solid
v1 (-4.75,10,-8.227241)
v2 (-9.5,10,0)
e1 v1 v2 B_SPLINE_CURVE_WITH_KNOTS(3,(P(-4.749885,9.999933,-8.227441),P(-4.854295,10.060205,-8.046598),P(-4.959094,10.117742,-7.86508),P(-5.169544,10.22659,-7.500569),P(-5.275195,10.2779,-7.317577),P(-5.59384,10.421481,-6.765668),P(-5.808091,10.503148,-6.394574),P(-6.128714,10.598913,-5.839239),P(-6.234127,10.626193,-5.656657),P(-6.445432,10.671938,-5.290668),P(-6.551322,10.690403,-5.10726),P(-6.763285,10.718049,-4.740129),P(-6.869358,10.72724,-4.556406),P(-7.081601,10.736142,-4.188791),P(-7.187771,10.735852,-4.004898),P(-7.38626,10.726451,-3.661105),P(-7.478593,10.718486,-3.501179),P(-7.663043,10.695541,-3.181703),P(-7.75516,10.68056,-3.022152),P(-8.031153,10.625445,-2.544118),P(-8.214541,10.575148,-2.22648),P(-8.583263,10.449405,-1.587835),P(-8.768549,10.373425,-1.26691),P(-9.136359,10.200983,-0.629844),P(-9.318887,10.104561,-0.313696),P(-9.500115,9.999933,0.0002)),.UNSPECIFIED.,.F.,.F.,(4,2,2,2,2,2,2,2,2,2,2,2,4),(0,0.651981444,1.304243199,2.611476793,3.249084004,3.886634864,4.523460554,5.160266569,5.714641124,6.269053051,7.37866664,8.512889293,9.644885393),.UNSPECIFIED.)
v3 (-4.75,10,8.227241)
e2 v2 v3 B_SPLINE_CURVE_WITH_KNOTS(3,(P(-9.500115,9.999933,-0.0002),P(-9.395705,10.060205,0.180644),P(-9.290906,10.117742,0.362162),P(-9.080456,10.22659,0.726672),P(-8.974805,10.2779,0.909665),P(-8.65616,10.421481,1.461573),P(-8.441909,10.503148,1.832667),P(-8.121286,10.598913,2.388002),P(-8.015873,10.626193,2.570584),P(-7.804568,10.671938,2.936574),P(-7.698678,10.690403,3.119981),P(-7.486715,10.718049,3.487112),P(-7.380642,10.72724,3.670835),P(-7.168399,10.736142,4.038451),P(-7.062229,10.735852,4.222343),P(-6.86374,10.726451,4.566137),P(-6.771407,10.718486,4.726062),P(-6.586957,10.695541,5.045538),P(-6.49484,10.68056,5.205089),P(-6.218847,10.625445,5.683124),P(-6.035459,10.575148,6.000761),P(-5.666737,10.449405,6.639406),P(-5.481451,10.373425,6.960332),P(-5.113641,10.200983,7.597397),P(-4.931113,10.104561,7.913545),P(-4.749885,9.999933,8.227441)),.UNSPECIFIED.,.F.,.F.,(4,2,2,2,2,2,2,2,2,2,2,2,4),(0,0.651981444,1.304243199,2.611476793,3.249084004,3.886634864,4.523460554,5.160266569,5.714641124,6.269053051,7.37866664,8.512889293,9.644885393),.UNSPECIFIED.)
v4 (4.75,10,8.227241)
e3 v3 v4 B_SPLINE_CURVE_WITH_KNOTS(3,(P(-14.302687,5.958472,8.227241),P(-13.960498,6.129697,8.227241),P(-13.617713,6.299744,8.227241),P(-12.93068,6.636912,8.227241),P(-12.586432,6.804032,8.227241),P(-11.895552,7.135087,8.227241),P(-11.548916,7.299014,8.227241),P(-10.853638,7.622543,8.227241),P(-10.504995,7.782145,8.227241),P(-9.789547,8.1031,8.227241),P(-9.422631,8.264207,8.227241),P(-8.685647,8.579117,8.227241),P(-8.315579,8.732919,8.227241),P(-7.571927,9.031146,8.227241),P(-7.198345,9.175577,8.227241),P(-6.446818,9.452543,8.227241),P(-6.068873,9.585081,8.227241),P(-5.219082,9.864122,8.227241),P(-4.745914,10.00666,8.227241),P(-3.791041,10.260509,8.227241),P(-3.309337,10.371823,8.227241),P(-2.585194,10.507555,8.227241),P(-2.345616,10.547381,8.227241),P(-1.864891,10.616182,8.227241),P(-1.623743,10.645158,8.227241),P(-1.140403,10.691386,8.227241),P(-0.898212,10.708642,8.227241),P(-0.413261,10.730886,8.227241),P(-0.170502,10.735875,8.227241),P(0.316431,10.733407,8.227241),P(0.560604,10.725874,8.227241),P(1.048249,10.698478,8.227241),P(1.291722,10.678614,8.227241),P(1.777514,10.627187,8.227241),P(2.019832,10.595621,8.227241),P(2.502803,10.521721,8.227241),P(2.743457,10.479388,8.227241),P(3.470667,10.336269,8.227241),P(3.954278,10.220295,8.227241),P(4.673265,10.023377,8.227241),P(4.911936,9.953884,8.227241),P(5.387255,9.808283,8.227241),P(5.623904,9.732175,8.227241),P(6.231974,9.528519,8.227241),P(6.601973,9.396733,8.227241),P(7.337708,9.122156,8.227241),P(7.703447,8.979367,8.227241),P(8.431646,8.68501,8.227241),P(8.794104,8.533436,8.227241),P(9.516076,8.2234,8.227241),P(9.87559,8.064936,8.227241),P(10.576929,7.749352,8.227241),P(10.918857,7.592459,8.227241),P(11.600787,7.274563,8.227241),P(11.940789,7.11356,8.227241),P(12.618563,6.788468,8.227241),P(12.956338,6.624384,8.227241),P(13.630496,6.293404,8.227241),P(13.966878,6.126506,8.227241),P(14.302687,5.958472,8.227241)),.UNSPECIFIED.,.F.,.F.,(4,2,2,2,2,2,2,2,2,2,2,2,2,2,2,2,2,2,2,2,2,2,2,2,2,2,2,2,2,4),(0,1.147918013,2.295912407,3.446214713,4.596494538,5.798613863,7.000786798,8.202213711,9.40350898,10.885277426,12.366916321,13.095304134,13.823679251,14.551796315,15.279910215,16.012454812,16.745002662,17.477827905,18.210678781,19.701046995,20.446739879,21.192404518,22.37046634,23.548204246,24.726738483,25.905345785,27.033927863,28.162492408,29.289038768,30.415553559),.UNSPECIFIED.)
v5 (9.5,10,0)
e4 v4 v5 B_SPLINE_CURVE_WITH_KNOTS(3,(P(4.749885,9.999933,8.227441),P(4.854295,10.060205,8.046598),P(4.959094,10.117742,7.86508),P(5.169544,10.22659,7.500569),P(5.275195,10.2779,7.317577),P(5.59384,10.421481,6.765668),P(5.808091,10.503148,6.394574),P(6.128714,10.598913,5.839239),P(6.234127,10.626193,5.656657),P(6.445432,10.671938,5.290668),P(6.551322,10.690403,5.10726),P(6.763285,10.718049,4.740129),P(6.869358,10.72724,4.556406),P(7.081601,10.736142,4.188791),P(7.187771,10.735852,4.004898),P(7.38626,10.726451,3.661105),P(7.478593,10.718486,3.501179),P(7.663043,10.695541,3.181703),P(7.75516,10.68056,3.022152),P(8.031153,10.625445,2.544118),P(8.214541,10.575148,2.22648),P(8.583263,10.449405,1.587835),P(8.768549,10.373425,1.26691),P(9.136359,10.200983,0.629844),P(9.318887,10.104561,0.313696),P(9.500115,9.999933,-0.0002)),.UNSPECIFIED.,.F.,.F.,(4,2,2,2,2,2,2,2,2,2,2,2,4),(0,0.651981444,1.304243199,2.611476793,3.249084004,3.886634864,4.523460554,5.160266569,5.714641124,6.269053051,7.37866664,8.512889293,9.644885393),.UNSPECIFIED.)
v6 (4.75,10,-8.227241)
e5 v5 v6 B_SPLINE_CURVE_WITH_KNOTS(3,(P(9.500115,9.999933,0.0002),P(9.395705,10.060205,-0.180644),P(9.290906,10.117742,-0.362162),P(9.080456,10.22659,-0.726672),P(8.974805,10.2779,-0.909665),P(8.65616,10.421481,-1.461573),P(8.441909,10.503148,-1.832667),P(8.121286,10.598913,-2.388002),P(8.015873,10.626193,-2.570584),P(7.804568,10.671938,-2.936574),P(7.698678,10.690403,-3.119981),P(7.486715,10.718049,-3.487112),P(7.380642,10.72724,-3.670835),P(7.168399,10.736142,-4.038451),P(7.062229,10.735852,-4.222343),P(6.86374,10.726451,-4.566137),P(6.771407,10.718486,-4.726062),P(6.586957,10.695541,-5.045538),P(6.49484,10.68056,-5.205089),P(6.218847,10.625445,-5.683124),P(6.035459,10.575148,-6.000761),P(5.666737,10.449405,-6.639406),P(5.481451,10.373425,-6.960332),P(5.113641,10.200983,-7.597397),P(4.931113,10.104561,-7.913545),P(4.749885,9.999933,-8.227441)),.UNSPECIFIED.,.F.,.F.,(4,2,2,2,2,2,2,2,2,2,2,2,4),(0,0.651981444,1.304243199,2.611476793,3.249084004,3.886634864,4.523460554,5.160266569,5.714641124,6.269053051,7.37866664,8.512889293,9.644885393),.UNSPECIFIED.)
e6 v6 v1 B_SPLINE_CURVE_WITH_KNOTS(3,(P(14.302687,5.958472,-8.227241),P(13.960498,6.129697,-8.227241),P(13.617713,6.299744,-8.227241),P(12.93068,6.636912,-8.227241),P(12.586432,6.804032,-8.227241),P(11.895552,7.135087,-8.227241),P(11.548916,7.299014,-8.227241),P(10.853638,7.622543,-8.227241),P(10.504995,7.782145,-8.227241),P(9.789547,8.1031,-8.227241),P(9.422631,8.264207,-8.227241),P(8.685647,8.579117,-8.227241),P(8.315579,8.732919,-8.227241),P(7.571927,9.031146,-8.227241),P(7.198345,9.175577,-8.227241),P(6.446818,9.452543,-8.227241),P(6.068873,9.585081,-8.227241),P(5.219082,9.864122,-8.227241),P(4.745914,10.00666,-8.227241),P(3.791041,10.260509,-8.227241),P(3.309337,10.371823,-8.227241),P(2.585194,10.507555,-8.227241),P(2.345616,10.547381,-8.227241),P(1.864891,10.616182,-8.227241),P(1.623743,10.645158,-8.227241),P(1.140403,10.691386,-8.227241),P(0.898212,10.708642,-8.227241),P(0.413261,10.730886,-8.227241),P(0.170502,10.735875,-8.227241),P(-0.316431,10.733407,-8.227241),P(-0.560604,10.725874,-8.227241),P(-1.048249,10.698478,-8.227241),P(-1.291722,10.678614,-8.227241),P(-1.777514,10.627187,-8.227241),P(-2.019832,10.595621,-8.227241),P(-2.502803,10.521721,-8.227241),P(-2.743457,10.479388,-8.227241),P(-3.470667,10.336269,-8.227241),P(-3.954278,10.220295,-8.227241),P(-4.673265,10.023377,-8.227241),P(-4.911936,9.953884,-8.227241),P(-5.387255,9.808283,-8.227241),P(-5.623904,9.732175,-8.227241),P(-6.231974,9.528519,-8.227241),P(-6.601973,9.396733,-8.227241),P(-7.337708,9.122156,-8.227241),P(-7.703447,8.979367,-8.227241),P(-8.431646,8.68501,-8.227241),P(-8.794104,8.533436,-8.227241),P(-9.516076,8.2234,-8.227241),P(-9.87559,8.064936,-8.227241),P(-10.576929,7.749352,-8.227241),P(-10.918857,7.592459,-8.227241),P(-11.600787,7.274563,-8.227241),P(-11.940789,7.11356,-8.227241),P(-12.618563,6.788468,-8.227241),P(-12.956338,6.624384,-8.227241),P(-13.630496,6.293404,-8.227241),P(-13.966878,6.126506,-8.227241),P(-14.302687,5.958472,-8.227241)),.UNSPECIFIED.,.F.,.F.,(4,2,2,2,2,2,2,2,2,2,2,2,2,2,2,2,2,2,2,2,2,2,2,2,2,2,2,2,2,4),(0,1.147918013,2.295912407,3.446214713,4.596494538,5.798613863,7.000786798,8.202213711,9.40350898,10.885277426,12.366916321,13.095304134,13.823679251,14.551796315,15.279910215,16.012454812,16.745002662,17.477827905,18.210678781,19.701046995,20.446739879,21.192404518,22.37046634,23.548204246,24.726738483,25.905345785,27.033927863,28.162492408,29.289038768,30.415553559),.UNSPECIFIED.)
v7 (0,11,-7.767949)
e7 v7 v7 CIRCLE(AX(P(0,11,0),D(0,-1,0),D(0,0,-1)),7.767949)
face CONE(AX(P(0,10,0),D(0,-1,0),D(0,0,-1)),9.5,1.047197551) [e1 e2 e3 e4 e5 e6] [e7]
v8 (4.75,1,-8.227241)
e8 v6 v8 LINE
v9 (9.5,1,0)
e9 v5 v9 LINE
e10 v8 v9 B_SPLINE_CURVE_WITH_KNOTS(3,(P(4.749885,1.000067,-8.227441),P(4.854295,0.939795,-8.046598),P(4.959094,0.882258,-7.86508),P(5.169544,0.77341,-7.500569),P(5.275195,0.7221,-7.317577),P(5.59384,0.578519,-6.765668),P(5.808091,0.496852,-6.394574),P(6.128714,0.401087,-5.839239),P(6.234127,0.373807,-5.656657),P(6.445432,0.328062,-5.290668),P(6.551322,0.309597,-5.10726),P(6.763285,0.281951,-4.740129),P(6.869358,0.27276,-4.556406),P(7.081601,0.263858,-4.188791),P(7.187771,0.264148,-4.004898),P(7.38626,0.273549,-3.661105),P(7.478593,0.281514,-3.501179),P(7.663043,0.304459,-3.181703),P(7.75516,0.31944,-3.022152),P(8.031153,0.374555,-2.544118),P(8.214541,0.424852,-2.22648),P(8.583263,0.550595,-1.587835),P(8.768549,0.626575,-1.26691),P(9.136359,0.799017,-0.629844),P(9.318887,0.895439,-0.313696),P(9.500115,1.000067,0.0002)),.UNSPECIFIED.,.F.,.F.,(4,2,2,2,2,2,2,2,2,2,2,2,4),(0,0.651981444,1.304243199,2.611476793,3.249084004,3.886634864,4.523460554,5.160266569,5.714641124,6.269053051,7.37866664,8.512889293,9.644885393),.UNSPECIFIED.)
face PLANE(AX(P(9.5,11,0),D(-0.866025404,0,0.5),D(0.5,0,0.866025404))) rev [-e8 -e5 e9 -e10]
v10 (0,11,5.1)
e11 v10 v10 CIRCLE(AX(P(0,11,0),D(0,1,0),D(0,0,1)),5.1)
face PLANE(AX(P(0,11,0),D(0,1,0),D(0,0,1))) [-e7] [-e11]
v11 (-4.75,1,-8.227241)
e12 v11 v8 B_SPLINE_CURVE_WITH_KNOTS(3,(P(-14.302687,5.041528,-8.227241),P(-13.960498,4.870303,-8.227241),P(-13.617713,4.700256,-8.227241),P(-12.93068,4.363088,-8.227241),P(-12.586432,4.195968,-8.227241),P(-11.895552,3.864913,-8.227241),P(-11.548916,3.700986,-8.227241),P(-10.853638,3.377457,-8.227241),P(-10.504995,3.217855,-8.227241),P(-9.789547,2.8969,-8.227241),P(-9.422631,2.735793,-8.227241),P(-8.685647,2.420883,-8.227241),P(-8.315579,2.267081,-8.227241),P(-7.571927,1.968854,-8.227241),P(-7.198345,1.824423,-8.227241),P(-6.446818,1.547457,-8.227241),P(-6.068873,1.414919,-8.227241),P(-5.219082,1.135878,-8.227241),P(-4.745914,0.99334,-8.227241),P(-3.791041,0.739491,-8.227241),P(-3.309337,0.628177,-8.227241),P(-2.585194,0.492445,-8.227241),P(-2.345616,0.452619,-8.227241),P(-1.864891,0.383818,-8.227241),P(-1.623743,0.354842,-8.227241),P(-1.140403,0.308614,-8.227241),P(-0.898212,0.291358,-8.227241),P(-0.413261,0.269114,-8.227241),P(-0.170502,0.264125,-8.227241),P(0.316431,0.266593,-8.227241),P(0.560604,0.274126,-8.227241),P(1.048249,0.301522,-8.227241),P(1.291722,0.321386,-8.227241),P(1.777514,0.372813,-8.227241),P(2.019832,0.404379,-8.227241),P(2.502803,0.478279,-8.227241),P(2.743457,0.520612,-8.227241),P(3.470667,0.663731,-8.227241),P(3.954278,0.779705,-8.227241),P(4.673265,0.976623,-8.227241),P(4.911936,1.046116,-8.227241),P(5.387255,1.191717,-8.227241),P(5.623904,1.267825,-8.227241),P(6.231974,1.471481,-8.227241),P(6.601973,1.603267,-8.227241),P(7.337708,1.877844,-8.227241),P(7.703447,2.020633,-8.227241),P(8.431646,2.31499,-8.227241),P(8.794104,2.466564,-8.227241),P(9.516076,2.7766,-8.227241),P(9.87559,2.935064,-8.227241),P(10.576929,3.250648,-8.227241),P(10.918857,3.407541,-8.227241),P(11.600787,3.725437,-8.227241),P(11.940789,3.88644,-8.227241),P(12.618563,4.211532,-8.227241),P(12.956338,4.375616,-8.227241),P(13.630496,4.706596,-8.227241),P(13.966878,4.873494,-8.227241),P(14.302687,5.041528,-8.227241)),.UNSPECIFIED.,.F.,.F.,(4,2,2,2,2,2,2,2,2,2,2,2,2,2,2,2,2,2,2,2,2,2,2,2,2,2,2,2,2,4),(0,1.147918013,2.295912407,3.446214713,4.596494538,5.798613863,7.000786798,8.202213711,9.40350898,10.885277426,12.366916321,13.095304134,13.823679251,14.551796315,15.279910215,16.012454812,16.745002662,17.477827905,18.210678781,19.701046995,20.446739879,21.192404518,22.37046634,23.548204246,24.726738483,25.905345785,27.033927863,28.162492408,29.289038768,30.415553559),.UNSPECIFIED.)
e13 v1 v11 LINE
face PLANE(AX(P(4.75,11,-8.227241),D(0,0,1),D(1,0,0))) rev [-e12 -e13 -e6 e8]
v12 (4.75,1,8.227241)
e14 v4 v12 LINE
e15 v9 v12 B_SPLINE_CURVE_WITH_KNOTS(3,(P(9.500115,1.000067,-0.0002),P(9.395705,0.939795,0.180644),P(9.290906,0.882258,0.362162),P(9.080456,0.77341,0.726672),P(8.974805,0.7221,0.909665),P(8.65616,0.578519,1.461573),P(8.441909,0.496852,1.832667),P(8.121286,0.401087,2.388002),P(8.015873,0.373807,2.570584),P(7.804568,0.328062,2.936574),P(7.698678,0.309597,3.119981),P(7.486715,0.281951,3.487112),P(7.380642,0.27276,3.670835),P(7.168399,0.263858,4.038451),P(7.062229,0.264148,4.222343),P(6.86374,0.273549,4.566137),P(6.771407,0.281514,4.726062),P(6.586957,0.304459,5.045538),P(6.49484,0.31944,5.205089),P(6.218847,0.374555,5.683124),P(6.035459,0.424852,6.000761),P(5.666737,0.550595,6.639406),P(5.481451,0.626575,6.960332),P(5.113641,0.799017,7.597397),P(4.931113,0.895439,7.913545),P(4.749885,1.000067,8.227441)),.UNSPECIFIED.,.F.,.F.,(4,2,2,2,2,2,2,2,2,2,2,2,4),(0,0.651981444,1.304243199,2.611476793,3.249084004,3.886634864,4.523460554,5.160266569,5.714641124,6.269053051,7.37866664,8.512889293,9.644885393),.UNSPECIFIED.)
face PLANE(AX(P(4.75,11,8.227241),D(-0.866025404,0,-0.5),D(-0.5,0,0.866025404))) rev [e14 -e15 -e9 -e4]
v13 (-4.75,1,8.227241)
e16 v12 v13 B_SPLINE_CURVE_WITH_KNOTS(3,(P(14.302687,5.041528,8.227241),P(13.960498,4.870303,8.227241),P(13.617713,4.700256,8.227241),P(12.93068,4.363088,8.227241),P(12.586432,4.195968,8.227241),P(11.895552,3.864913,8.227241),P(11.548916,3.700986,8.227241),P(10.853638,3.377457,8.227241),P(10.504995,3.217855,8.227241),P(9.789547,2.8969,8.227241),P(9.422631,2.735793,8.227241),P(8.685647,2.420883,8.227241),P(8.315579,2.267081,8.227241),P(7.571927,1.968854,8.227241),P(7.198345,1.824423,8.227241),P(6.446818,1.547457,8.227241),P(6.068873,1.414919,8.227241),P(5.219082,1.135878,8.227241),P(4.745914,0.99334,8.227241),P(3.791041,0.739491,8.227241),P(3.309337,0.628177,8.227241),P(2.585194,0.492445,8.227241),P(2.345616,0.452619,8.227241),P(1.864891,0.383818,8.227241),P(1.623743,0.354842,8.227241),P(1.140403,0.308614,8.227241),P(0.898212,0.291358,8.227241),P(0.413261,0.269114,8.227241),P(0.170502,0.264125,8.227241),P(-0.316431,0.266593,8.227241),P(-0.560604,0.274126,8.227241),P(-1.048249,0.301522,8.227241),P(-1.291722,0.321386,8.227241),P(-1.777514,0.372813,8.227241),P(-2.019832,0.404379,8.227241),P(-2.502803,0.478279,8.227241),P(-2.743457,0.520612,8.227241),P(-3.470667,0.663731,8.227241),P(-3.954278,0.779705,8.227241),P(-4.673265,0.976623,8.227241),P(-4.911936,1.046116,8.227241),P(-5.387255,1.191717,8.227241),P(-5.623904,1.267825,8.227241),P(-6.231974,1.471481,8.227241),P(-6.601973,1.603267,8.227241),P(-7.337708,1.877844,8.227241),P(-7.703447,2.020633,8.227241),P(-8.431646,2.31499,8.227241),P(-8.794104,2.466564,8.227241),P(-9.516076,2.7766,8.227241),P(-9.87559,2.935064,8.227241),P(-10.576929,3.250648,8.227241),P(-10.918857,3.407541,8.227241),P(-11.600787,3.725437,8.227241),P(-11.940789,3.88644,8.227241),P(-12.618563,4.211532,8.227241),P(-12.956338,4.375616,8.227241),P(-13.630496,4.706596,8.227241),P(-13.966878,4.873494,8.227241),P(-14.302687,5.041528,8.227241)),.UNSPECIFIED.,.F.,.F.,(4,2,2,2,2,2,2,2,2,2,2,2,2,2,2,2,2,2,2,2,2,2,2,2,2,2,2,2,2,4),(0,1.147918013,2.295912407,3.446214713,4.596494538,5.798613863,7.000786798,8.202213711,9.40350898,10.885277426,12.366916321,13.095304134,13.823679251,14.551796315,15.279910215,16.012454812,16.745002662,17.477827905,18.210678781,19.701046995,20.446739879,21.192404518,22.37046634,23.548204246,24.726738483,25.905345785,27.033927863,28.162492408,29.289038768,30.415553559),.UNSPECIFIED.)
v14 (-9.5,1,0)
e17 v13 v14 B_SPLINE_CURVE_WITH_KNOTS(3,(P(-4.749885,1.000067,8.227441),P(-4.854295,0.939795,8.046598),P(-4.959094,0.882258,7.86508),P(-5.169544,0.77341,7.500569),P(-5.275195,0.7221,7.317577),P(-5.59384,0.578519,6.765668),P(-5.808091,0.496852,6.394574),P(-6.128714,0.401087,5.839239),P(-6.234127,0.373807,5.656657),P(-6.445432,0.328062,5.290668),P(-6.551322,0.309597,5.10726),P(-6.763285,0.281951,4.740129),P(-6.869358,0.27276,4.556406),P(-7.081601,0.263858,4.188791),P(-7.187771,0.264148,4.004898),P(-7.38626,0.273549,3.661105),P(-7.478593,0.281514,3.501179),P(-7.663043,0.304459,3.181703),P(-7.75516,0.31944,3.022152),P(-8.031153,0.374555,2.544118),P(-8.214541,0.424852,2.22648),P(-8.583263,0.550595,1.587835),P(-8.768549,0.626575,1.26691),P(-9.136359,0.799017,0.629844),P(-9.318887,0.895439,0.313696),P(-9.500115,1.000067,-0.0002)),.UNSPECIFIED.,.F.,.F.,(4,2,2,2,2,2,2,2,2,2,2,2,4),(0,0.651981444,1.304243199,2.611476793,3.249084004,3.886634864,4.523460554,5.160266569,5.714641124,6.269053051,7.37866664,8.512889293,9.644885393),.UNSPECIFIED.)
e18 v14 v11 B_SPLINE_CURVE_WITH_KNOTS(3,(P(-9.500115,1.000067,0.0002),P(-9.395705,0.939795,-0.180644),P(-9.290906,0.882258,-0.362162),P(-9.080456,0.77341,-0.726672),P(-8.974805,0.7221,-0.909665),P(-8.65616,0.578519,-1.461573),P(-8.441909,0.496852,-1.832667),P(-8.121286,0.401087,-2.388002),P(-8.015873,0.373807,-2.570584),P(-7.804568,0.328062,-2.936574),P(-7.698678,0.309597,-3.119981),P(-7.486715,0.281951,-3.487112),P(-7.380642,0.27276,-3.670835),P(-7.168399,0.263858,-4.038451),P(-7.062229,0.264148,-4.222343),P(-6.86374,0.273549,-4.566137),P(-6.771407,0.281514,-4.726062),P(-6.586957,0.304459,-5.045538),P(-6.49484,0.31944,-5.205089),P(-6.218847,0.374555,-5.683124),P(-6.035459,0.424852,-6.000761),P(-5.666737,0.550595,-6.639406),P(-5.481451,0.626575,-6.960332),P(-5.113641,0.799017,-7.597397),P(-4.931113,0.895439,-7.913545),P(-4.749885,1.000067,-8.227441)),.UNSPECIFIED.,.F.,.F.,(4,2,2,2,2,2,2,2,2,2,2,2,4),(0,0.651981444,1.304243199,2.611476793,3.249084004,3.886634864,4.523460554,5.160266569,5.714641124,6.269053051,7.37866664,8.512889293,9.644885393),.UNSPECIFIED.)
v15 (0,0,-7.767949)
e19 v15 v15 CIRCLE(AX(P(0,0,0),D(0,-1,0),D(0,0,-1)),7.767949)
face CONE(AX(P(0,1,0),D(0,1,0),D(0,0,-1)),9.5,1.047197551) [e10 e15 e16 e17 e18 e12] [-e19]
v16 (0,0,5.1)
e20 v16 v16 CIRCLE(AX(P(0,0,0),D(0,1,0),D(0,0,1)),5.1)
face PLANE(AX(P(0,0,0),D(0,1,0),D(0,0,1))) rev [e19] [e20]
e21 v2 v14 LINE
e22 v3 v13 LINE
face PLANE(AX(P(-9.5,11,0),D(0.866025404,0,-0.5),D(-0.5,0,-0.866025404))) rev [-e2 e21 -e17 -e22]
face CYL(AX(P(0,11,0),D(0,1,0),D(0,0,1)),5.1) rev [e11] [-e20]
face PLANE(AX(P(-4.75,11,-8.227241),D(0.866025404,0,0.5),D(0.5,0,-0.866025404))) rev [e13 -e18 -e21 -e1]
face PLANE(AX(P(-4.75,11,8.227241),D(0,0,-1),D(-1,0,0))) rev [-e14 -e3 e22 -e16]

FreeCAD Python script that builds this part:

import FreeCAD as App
import Part
import Sketcher
Q = App.Units.Quantity

doc = App.newDocument("Part")
body = doc.addObject("PartDesign::Body", "Body")

# Sketch on XZ plane
sketch1 = body.newObject("Sketcher::SketchObject", "Sketch")
sketch1.AttachmentSupport = (doc.getObject("XZ_Plane"), [""])
sketch1.MapMode = "FlatFace"
sketch1.addGeometry([
    Part.LineSegment(App.Vector(10, 0, 0), App.Vector(5, -8, 0)),  # 0
    Part.LineSegment(App.Vector(5, -8, 0), App.Vector(-5, -8, 0)),  # 1
    Part.LineSegment(App.Vector(-5, -8, 0), App.Vector(-10, 0, 0)),  # 2
    Part.LineSegment(App.Vector(-10, 0, 0), App.Vector(-5, 8, 0)),  # 3
    Part.LineSegment(App.Vector(-5, 8, 0), App.Vector(5, 8, 0)),  # 4
    Part.LineSegment(App.Vector(5, 8, 0), App.Vector(10, 0, 0)),  # 5
], False)
sketch1.addConstraint([
    Sketcher.Constraint("Coincident", 0, 2, 1, 1),
    Sketcher.Constraint("Coincident", 1, 2, 2, 1),
    Sketcher.Constraint("Coincident", 2, 2, 3, 1),
    Sketcher.Constraint("Coincident", 3, 2, 4, 1),
    Sketcher.Constraint("Coincident", 4, 2, 5, 1),
    Sketcher.Constraint("Coincident", 5, 2, 0, 1),
    Sketcher.Constraint("Horizontal", 1),
    Sketcher.Constraint("Horizontal", 4),
    Sketcher.Constraint("Symmetric", 0, 2, 3, 2, -1, 1),
    Sketcher.Constraint("Symmetric", 2, 2, 5, 2, -1, 1),
    Sketcher.Constraint("PointOnObject", 2, 2, -1),
    Sketcher.Constraint("Parallel", 2, 5),
    Sketcher.Constraint("Vertical", 1, 2, 3, 2),
    Sketcher.Constraint("Angle", 0, Q("-120 deg")),
    Sketcher.Constraint("DistanceX", 1, 2, 1, 1, 9.5),
    Sketcher.Constraint("DistanceX", 2, 2, 5, 2, 19.0),
])
pad1 = body.newObject("PartDesign::Pad", "Pad")
pad1.Profile = sketch1
pad1.Length = 11
pad1.Reversed = True

# Sketch on XZ plane
sketch2 = body.newObject("Sketcher::SketchObject", "Sketch001")
sketch2.AttachmentSupport = (doc.getObject("XZ_Plane"), [""])
sketch2.MapMode = "FlatFace"
sketch2.AttachmentOffset = App.Placement(App.Vector(0, 0, -11), App.Rotation())
sketch2.addGeometry(Part.Circle(App.Vector(0, 0, 0), App.Vector(0, 0, 1), 5), False)
sketch2.addConstraint([
    Sketcher.Constraint("Coincident", 0, 3, -1, 1),
    Sketcher.Constraint("Diameter", 0, 10.2),
])
doc.recompute()
hole = body.newObject("PartDesign::Hole", "Hole")
hole.Profile = sketch2
hole.ThreadType = "None"
hole.Diameter = 10.2
hole.DepthType = "ThroughAll"
hole.Reversed = True

# Sketch on XY plane
sketch3 = body.newObject("Sketcher::SketchObject", "Sketch002")
sketch3.AttachmentSupport = (doc.getObject("XY_Plane"), [""])
sketch3.MapMode = "FlatFace"
sketch3.addGeometry([
    Part.LineSegment(App.Vector(-9.5, 10, 0), App.Vector(-7.8, 11, 0)),
    Part.LineSegment(App.Vector(-7.8, 11, 0), App.Vector(-9.5, 11, 0)),
    Part.LineSegment(App.Vector(-9.5, 11, 0), App.Vector(-9.5, 10, 0)),
], False)
sketch3.addConstraint([
    Sketcher.Constraint("Coincident", 0, 2, 1, 1),
    Sketcher.Constraint("Coincident", 1, 2, 2, 1),
    Sketcher.Constraint("Coincident", 2, 2, 0, 1),
    Sketcher.Constraint("Horizontal", 1),
    Sketcher.Constraint("Vertical", 2),
    Sketcher.Constraint("DistanceY", 2, 2, 2, 1, 1.0),
    Sketcher.Constraint("Angle", 0, Q("30 deg")),
    Sketcher.Constraint("DistanceY", -1, 1, 0, 2, 11.0),
    Sketcher.Constraint("DistanceX", 1, 2, -1, 1, 9.5),
])
groove = body.newObject("PartDesign::Groove", "Groove")
groove.Profile = sketch3
groove.ReferenceAxis = (sketch3, ["V_Axis"])
groove.Angle = 360
doc.recompute()

datumplane = body.newObject("PartDesign::Plane", "DatumPlane")
datumplane.AttachmentSupport = (doc.getObject("XZ_Plane"), [""])
datumplane.MapMode = "FlatFace"
datumplane.AttachmentOffset = App.Placement(App.Vector(0, 0, -5.5), App.Rotation())
mirrored = body.newObject("PartDesign::Mirrored", "Mirrored")
mirrored.Originals = [groove]
mirrored.MirrorPlane = (datumplane, [""])
body.Tip = mirrored

doc.recompute()
